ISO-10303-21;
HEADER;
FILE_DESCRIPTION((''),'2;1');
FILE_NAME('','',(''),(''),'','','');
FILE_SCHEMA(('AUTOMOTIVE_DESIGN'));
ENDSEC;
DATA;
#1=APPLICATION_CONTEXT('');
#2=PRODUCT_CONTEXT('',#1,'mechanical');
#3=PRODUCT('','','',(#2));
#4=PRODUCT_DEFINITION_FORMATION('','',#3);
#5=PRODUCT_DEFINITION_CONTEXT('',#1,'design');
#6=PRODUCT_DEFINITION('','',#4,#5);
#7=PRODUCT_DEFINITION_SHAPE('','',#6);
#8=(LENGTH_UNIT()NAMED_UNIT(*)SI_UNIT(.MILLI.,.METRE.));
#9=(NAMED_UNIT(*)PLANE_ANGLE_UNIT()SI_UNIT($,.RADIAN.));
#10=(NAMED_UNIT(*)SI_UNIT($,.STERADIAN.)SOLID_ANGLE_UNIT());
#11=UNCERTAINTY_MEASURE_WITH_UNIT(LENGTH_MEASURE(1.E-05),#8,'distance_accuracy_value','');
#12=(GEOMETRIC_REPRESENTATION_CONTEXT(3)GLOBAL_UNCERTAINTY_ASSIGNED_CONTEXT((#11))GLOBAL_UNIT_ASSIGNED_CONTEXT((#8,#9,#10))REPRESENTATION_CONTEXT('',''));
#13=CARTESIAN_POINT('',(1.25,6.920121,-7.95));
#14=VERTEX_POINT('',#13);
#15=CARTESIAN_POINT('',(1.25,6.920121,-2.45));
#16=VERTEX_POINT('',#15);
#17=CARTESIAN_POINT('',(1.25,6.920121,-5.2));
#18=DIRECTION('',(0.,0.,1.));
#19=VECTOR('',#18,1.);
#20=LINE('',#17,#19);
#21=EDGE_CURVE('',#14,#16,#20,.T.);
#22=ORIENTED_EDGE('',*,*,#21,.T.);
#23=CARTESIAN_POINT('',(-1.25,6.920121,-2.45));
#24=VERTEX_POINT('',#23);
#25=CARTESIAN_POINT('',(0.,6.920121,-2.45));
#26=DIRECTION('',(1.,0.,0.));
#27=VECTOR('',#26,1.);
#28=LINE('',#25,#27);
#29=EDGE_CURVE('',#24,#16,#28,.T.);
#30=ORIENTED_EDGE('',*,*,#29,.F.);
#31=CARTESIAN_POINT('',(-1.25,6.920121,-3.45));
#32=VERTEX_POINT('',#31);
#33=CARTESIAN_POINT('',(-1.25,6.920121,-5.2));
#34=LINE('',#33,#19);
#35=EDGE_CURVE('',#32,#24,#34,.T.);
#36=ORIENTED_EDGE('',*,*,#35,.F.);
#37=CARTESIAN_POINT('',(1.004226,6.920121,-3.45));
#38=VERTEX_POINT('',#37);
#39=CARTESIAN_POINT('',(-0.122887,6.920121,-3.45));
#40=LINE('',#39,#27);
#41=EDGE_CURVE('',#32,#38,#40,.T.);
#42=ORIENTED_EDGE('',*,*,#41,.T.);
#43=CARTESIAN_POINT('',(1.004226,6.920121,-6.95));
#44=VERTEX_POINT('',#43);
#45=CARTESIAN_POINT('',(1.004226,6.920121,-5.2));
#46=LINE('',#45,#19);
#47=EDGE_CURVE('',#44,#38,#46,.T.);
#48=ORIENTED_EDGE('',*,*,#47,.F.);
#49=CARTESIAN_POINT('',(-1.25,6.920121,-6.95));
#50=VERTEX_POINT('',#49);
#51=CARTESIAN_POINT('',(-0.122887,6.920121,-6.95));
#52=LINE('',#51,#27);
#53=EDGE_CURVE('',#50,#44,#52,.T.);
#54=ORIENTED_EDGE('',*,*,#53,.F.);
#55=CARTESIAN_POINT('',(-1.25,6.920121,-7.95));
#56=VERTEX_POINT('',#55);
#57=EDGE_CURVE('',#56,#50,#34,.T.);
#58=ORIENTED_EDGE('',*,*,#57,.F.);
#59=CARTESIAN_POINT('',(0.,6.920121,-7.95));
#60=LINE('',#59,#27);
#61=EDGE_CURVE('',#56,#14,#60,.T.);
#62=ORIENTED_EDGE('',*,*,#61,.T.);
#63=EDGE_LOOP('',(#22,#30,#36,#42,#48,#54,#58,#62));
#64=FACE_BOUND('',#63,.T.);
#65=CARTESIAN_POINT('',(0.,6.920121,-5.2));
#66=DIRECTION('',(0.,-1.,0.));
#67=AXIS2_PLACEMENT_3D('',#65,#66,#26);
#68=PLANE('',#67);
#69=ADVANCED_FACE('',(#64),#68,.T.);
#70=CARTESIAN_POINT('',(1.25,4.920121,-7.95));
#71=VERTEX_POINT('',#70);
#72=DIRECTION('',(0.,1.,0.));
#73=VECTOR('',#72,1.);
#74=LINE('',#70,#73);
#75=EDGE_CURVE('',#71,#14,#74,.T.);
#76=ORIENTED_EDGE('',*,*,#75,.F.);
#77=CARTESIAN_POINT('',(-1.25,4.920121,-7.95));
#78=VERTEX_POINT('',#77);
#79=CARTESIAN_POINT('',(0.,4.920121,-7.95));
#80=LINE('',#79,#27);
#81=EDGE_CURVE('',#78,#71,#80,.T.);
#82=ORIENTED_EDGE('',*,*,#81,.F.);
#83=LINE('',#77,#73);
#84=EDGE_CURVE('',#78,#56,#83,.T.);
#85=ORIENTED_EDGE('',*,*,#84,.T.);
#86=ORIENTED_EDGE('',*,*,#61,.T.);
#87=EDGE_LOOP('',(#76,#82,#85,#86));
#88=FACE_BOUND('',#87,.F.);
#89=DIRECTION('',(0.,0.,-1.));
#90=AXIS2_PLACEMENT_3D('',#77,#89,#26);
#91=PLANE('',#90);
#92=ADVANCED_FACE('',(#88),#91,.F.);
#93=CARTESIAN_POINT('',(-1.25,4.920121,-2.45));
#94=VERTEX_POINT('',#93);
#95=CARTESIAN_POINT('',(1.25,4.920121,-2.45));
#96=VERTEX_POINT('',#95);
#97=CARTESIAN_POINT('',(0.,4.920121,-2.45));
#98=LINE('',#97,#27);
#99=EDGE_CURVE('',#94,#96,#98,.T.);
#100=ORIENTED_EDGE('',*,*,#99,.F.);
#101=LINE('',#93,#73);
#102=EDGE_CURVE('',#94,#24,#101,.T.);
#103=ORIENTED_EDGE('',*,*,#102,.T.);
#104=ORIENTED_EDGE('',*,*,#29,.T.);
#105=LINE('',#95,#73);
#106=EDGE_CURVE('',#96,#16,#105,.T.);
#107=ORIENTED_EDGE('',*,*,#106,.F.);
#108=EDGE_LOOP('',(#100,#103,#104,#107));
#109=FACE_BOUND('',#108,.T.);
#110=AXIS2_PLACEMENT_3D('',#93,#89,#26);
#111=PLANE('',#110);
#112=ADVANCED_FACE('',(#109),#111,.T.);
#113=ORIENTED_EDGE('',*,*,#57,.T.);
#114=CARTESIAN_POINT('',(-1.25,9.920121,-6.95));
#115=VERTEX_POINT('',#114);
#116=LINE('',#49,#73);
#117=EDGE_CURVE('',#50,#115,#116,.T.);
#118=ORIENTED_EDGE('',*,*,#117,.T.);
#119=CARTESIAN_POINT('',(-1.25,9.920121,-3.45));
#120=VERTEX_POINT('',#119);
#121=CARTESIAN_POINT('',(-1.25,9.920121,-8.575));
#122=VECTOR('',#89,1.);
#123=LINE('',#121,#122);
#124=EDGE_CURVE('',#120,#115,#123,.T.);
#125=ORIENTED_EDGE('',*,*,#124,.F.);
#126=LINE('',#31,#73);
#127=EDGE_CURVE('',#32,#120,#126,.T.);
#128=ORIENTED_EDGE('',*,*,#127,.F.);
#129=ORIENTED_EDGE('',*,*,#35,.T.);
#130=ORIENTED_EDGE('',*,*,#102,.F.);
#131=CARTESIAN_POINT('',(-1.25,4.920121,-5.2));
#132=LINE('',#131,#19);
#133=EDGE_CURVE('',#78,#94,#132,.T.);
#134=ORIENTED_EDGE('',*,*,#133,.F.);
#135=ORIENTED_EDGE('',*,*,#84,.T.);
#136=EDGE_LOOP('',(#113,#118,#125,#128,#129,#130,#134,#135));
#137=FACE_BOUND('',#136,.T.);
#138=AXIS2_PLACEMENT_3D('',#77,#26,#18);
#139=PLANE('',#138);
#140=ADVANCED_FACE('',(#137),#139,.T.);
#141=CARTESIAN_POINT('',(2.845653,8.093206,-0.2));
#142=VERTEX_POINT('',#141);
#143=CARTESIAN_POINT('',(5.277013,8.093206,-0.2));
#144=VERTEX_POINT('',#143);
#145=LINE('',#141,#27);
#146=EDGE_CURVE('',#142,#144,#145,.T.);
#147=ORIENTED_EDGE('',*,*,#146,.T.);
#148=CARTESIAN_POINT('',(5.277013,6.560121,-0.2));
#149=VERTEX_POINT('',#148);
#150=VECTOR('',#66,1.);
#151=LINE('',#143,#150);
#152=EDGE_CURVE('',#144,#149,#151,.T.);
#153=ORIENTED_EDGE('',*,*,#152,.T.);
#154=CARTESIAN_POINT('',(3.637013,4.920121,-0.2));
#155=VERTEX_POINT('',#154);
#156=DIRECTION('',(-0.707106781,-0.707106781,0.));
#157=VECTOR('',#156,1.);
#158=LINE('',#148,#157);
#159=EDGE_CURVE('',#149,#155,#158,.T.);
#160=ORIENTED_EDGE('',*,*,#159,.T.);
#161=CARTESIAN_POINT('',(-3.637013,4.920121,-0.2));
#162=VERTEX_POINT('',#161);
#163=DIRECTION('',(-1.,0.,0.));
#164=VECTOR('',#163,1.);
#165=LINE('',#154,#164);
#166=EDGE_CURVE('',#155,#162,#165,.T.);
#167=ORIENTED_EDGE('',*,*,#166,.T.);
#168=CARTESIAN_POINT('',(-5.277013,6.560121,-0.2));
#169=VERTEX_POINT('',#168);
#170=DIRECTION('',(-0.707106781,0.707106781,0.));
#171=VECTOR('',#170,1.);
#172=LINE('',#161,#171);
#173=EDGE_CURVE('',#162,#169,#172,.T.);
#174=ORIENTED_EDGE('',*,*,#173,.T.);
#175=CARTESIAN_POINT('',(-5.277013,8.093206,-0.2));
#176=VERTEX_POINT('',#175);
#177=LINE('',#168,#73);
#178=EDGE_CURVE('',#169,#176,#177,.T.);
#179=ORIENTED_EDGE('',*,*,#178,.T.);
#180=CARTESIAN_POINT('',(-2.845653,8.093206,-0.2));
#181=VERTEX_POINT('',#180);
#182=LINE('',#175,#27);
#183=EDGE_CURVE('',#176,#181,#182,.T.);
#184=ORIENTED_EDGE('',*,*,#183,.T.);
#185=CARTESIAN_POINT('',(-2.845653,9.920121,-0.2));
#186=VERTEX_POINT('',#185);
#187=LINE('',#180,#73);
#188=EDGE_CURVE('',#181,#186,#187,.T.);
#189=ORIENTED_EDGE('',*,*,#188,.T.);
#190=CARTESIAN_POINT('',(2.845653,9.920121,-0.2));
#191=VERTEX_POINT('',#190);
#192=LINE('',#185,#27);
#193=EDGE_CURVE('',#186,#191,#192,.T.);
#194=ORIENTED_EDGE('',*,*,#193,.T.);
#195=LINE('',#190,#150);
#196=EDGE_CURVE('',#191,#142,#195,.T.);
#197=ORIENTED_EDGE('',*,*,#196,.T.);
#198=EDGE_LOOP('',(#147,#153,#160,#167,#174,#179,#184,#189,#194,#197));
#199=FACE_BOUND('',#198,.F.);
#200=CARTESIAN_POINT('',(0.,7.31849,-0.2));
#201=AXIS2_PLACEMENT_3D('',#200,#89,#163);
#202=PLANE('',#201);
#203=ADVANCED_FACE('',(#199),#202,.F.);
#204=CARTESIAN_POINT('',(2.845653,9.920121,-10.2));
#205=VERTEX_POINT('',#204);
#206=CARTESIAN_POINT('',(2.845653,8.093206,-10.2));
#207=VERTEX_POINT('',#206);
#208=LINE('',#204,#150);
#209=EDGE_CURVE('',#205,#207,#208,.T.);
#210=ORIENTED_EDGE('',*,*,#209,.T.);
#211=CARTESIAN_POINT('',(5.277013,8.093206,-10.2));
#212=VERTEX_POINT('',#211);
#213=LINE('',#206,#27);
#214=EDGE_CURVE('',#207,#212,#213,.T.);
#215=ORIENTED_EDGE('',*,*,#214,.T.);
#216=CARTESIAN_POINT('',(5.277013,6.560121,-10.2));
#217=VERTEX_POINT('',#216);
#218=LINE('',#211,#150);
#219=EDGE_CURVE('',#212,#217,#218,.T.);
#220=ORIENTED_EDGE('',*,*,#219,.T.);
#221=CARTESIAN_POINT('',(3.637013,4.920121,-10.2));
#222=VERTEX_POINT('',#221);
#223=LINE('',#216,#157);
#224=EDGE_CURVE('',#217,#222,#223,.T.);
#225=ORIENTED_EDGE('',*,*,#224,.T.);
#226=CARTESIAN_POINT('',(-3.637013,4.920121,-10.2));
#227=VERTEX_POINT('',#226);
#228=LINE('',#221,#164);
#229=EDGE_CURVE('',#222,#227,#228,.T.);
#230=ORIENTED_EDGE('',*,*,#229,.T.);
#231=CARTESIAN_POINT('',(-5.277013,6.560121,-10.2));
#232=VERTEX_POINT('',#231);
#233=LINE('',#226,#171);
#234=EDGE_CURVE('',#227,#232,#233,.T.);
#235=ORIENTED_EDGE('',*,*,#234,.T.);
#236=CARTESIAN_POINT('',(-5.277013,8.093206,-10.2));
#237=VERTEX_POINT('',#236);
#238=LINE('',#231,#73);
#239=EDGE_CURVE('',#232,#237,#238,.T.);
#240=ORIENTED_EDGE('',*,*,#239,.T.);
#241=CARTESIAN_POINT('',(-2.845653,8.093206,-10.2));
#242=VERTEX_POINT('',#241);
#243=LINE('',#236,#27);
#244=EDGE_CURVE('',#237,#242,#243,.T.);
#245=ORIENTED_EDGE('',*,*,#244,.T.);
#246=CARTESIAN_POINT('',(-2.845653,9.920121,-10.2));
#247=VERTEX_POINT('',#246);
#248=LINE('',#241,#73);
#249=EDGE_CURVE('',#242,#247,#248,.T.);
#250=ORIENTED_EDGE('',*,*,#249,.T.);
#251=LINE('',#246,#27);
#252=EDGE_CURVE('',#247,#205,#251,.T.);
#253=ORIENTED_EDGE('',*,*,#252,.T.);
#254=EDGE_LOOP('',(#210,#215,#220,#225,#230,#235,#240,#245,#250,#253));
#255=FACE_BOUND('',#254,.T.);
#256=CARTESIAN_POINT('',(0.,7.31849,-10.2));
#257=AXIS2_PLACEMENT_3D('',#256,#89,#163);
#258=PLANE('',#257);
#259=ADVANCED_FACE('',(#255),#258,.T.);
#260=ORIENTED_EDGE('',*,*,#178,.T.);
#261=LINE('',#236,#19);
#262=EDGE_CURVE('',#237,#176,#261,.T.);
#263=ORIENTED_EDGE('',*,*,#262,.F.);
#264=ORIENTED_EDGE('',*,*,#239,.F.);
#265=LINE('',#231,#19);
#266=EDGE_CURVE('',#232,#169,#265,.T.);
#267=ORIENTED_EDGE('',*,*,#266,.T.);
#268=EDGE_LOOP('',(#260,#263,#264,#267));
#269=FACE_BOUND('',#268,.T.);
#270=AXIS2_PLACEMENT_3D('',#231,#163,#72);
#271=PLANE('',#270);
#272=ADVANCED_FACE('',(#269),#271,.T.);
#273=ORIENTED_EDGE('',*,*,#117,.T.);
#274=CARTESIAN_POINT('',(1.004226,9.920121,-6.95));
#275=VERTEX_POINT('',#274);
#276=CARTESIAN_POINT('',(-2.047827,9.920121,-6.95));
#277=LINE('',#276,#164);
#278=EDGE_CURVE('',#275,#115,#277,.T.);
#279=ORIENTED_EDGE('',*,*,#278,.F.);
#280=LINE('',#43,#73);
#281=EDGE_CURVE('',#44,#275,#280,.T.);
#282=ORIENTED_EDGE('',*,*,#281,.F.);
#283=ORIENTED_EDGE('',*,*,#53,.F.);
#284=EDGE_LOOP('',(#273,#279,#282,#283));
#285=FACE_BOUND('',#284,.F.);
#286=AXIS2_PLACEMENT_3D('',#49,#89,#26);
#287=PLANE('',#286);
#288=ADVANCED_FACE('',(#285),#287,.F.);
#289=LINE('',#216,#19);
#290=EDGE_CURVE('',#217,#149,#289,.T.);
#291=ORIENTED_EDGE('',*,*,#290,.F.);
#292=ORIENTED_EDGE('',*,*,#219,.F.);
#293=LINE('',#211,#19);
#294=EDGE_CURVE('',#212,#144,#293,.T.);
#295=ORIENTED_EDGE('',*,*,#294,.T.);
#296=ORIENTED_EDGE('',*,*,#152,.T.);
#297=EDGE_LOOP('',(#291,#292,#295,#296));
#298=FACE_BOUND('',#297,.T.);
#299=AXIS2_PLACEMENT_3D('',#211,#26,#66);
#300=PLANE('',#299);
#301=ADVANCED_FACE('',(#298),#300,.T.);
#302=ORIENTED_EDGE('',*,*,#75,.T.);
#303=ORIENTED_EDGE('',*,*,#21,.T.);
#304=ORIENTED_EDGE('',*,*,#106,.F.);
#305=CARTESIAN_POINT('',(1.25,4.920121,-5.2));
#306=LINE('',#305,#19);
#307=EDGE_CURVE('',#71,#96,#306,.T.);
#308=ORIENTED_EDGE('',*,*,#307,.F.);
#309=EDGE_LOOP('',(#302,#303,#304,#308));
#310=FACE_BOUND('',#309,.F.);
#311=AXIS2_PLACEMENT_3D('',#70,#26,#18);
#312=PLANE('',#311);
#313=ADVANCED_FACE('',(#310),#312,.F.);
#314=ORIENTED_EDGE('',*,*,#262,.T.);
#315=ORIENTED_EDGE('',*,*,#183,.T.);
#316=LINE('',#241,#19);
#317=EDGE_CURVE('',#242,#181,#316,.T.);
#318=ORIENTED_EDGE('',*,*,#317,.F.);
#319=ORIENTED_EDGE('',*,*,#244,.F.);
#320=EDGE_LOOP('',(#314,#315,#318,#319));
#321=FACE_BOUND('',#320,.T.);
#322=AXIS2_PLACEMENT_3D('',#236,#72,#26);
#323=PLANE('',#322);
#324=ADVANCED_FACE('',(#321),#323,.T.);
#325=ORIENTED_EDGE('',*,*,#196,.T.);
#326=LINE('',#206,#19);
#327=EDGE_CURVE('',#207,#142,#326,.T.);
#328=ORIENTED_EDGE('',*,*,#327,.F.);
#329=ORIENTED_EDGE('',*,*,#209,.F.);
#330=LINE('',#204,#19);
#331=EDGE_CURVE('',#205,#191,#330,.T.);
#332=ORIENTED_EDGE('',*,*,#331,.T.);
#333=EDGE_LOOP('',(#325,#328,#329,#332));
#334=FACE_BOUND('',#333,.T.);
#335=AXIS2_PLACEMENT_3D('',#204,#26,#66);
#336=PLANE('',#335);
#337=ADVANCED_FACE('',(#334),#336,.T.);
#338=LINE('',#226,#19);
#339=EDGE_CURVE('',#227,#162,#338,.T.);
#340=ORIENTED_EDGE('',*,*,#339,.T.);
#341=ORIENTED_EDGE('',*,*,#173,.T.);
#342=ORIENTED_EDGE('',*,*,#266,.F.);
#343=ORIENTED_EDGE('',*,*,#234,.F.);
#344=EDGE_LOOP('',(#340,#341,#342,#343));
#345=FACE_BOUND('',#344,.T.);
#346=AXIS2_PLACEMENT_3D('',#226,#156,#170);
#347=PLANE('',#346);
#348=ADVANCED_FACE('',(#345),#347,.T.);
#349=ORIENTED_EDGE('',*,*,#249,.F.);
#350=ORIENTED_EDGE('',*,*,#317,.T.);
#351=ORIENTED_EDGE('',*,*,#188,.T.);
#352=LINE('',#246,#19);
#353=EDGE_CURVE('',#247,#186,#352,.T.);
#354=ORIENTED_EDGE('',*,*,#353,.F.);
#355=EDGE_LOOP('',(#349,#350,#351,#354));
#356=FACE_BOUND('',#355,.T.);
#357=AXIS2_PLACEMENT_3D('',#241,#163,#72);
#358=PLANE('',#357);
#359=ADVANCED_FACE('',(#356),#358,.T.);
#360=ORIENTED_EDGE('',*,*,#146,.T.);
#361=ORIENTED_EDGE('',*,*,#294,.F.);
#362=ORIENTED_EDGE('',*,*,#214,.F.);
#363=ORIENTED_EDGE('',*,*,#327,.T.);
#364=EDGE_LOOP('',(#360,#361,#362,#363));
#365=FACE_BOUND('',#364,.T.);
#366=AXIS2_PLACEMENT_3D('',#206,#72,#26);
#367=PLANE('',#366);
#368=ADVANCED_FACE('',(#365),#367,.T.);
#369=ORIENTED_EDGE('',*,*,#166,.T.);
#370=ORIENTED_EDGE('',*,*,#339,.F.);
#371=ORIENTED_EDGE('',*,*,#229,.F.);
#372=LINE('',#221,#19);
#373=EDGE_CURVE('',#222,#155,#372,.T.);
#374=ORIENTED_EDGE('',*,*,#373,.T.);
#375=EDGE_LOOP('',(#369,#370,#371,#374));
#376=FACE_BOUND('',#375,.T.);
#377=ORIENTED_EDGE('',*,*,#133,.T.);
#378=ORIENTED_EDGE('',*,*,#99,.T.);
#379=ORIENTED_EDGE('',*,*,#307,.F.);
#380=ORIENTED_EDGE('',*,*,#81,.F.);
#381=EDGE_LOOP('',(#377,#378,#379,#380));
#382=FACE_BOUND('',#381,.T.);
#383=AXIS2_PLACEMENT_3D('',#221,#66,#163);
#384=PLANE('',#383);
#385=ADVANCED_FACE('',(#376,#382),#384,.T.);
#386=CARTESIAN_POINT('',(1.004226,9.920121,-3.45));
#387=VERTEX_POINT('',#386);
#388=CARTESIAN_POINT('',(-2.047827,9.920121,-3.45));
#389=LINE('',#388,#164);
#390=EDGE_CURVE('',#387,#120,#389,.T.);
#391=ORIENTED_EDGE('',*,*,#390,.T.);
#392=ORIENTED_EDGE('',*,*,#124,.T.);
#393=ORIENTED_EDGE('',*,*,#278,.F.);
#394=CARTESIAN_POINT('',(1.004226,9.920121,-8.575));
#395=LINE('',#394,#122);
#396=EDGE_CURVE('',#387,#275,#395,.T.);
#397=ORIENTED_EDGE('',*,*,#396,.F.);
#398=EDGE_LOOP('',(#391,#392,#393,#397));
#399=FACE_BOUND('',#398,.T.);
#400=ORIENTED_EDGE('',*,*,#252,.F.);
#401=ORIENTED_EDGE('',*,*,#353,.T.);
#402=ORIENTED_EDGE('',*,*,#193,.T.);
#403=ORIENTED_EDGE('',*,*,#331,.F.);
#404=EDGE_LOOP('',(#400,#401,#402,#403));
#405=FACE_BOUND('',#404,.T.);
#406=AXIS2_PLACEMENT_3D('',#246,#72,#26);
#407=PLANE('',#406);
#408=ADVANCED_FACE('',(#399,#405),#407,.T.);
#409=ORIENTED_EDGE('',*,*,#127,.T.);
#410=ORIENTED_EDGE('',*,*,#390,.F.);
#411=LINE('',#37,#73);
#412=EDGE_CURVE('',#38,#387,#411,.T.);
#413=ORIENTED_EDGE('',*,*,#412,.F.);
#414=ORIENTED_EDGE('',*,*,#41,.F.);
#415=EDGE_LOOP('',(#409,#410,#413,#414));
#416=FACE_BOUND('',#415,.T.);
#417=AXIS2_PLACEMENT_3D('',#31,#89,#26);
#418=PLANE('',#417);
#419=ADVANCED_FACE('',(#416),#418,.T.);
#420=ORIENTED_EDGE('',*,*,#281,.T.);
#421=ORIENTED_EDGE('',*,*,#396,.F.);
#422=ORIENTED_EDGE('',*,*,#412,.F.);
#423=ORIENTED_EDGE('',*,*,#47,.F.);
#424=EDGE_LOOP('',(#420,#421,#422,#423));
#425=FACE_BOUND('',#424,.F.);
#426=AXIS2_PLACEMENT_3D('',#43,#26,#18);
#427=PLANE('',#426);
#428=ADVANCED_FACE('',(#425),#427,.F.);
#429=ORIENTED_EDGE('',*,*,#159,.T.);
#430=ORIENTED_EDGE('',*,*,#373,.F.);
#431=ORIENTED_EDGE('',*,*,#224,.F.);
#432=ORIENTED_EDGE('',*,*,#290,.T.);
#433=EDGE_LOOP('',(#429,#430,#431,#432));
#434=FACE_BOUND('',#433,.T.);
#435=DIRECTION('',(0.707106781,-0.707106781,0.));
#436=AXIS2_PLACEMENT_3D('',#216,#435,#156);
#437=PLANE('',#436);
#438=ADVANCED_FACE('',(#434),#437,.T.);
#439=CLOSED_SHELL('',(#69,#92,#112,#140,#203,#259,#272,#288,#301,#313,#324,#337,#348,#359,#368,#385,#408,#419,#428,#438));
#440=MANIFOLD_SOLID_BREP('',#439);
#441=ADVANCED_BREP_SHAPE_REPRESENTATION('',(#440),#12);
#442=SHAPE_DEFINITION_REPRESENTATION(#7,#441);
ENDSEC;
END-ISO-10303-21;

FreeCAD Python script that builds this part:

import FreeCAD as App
import Part
import Sketcher


def add_polygon(sketch, points):
    """Adds a closed chain of lines whose ends are joined by coincident constraints."""
    first, n = sketch.GeometryCount, len(points)
    for a, b in zip(points, points[1:] + points[:1]):
        sketch.addGeometry(Part.LineSegment(App.Vector(*a, 0), App.Vector(*b, 0)), False)
    for i in range(n):
        sketch.addConstraint(Sketcher.Constraint("Coincident", first + i, 2, first + (i + 1) % n, 1))

doc = App.newDocument("Part")
body = doc.addObject("PartDesign::Body", "Body")

# Sketch on XY plane
sketch1 = doc.addObject("Sketcher::SketchObject", "Sketch")
body.addObject(sketch1)
sketch1.AttachmentSupport = (doc.XY_Plane, [""])
sketch1.MapMode = "FlatFace"
add_polygon(sketch1, [(5.3, 6.6), (5.3, 8.1), (2.8, 8.1), (2.8, 9.9), (-2.8, 9.9), (-2.8, 8.1), (-5.3, 8.1), (-5.3, 6.6), (-3.6, 4.9), (3.6, 4.9)])  # lines 0-9
sketch1.addConstraint([
    Sketcher.Constraint("Vertical", 0),
    Sketcher.Constraint("Horizontal", 1),
    Sketcher.Constraint("Vertical", 2),
    Sketcher.Constraint("Horizontal", 3),
    Sketcher.Constraint("Vertical", 4),
    Sketcher.Constraint("Horizontal", 5),
    Sketcher.Constraint("Vertical", 6),
    Sketcher.Constraint("Horizontal", 8),
    Sketcher.Constraint("Symmetric", 1, 2, 4, 2, -2),
    Sketcher.Constraint("Symmetric", 6, 2, 9, 2, -2),
    Sketcher.Constraint("Perpendicular", 7, 9),
    Sketcher.Constraint("Equal", 7, 9),
    Sketcher.Constraint("DistanceY", 7, 2, 3, 2, 5.0),
    Sketcher.Constraint("DistanceY", 6, 2, 3, 2, 3.36),
    Sketcher.Constraint("DistanceX", 1, 2, 1, 1, 2.43136),
    Sketcher.Constraint("DistanceX", 3, 2, 3, 1, 5.691306),
    Sketcher.Constraint("DistanceY", 0, 1, 0, 2, 1.533085),
    Sketcher.Constraint("DistanceY", -1, 1, 2, 2, 9.920121),
])
pad1 = doc.addObject("PartDesign::Pad", "Pad")
body.addObject(pad1)
pad1.Profile = sketch1
pad1.Length = 10

# Sketch on XZ plane
sketch2 = doc.addObject("Sketcher::SketchObject", "Sketch001")
body.addObject(sketch2)
sketch2.AttachmentSupport = (doc.XZ_Plane, [""])
sketch2.MapMode = "FlatFace"
sketch2.AttachmentOffset = App.Placement(App.Vector(0, 0, -4.920121), App.Rotation())
add_polygon(sketch2, [(-1.2, 7.8), (-1.2, 2.2), (1.2, 2.2), (1.2, 7.8)])  # lines 0-3
sketch2.addConstraint([
    Sketcher.Constraint("Vertical", 0),
    Sketcher.Constraint("Horizontal", 1),
    Sketcher.Constraint("Vertical", 2),
    Sketcher.Constraint("Horizontal", 3),
    Sketcher.Constraint("DistanceX", 1, 1, 1, 2, 2.5),
    Sketcher.Constraint("DistanceY", 0, 2, 0, 1, 5.5),
    Sketcher.Constraint("DistanceX", 0, 2, -1, 1, 1.25),
    Sketcher.Constraint("DistanceY", -1, 1, 0, 2, 2.25),
])
pocket1 = doc.addObject("PartDesign::Pocket", "Pocket")
body.addObject(pocket1)
pocket1.Profile = sketch2
pocket1.Length = 2

# Sketch on XZ plane
sketch3 = doc.addObject("Sketcher::SketchObject", "Sketch002")
body.addObject(sketch3)
sketch3.AttachmentSupport = (doc.XZ_Plane, [""])
sketch3.MapMode = "FlatFace"
sketch3.AttachmentOffset = App.Placement(App.Vector(0, 0, -6.920121), App.Rotation())
add_polygon(sketch3, [(-1.2, 6.8), (-1.2, 3.2), (1, 3.2), (1, 6.8)])  # lines 0-3
sketch3.addConstraint([
    Sketcher.Constraint("Vertical", 0),
    Sketcher.Constraint("Horizontal", 1),
    Sketcher.Constraint("Vertical", 2),
    Sketcher.Constraint("Horizontal", 3),
    Sketcher.Constraint("DistanceY", 0, 2, 0, 1, 3.5),
    Sketcher.Constraint("DistanceX", 0, 2, -1, 1, 1.25),
    Sketcher.Constraint("DistanceY", -1, 1, 0, 2, 3.25),
    Sketcher.Constraint("DistanceX", 1, 1, 1, 2, 2.254226),
])
pocket2 = doc.addObject("PartDesign::Pocket", "Pocket001")
body.addObject(pocket2)
pocket2.Profile = sketch3
pocket2.Length = 5
body2 = doc.addObject("PartDesign::Body", "Body001")
doc.recompute()

body.Placement = App.Placement(App.Vector(0, 0, -10.2), App.Rotation(App.Vector(0, 0, 1), 0))
boolean = doc.addObject("PartDesign::Boolean", "Boolean")
body2.addObject(boolean)
boolean.Type = "Fuse"
boolean.addObjects([body])

doc.recompute()
